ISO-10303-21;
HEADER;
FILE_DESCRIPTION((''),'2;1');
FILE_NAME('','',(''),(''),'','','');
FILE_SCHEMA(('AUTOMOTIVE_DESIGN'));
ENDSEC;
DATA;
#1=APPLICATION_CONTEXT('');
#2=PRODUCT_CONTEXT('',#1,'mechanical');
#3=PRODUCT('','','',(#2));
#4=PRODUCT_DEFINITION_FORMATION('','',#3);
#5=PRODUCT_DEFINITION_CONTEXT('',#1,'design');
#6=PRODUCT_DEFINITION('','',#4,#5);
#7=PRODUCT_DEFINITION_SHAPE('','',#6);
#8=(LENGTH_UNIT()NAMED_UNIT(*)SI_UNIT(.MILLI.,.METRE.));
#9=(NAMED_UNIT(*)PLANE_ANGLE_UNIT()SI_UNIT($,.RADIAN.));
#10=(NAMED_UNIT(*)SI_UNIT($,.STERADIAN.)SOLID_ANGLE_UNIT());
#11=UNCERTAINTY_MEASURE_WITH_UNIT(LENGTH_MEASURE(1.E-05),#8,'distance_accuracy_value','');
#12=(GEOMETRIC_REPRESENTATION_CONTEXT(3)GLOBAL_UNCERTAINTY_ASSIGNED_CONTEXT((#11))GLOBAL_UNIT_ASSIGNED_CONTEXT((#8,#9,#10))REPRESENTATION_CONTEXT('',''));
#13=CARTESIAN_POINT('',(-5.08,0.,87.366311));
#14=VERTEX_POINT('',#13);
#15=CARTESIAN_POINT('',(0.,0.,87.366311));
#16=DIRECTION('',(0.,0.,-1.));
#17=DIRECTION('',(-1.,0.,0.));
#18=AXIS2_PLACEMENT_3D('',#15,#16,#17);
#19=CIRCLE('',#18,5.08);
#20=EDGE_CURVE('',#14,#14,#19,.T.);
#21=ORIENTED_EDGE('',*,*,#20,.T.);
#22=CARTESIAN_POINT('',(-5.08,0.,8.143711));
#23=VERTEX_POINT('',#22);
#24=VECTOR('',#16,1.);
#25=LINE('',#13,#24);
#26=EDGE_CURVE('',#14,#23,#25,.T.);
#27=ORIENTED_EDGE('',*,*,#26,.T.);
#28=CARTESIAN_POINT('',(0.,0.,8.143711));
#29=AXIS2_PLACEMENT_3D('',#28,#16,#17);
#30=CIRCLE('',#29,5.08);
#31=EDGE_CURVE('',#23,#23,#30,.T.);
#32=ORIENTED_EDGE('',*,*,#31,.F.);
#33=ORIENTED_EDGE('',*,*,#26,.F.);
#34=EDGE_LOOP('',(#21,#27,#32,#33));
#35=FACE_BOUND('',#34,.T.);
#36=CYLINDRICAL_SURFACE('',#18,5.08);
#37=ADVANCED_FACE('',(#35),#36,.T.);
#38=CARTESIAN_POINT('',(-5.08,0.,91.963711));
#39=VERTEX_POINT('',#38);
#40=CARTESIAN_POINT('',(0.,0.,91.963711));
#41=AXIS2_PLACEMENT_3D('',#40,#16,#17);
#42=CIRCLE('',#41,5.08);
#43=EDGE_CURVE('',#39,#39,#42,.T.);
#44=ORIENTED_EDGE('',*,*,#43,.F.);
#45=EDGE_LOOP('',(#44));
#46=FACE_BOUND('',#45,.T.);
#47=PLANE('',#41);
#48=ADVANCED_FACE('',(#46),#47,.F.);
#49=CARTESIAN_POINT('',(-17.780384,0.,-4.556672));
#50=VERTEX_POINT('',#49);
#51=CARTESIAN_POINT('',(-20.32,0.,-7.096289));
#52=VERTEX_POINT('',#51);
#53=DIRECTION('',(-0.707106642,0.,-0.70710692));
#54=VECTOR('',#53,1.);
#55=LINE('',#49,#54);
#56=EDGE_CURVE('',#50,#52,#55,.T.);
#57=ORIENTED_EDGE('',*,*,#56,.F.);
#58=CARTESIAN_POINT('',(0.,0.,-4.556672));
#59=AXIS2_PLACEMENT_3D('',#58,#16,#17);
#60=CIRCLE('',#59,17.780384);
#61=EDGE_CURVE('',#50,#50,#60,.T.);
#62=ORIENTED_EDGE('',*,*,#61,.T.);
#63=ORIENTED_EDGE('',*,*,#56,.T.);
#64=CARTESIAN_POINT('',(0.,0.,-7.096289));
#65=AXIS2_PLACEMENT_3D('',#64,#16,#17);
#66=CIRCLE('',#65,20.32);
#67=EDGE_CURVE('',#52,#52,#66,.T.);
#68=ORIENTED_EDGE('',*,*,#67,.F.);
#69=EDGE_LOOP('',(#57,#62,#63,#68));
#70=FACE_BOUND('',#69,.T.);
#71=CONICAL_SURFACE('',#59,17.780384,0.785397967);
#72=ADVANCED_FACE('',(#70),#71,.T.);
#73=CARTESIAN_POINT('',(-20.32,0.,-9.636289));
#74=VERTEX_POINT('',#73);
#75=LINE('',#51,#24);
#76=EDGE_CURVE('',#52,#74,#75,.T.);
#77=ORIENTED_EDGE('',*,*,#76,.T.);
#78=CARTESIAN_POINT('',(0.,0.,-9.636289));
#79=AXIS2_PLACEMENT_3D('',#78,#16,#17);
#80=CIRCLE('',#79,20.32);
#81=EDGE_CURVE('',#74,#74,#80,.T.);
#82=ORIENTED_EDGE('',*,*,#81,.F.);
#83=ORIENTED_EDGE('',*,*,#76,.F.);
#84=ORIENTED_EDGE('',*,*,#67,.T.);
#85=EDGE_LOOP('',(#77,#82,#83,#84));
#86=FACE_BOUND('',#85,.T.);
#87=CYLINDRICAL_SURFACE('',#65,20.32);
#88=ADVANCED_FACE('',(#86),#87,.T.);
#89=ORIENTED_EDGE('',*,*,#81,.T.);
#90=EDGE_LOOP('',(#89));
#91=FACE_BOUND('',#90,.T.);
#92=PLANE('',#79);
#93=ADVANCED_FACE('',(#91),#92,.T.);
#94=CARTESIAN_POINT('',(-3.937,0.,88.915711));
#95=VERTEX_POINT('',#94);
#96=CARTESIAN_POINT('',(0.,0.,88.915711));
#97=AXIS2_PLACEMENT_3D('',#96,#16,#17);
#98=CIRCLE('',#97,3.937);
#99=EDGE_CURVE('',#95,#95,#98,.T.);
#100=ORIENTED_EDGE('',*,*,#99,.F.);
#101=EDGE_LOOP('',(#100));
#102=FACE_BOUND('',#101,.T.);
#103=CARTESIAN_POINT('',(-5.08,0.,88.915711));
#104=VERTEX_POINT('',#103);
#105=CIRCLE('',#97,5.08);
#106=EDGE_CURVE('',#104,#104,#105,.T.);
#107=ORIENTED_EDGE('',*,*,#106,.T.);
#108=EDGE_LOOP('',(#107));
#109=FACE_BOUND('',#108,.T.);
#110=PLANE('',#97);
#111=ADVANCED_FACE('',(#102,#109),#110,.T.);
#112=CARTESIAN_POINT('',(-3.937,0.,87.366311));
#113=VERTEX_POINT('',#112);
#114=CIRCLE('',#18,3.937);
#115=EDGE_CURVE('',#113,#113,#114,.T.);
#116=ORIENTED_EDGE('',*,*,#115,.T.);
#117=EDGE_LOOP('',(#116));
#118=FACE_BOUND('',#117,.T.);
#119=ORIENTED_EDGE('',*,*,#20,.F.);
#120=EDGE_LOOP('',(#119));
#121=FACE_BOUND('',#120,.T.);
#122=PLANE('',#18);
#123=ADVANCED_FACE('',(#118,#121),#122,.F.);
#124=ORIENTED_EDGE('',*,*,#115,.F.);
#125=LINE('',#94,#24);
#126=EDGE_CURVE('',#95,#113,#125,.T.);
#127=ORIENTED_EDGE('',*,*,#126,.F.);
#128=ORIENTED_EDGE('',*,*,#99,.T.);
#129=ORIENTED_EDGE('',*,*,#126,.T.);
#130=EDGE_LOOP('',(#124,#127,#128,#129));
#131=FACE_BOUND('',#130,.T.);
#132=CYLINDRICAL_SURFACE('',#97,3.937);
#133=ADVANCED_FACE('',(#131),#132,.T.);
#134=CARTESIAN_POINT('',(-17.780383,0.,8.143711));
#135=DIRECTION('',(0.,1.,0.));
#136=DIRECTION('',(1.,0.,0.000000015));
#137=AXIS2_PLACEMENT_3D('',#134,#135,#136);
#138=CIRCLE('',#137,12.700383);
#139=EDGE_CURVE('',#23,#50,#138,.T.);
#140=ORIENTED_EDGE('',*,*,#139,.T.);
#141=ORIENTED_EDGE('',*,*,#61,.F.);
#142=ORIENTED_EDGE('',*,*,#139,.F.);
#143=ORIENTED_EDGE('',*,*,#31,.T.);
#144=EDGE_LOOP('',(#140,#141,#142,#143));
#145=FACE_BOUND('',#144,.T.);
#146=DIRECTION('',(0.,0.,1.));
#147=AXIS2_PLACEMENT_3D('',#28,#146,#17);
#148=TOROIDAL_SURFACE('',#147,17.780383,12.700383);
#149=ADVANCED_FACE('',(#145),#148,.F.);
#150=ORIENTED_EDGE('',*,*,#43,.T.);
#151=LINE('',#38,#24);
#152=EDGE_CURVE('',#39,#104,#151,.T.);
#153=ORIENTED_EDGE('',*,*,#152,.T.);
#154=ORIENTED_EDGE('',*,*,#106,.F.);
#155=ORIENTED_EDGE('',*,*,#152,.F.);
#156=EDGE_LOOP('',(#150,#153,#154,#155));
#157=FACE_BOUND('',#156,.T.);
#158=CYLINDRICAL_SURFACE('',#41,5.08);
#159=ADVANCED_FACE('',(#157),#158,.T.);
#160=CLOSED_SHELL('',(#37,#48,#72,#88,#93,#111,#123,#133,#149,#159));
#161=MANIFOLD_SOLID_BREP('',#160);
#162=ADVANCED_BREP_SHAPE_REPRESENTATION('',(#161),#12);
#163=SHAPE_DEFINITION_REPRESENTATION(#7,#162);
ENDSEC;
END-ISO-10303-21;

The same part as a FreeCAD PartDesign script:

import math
import FreeCAD as App
import Part
import Sketcher
Q = App.Units.Quantity

doc = App.newDocument("Part")
body = doc.addObject("PartDesign::Body", "Body")

sketch1 = body.newObject("Sketcher::SketchObject", "Sketch")
sketch1.AttachmentSupport = (doc.getObject("XZ_Plane"), [""])
sketch1.MapMode = "FlatFace"
sketch1.addGeometry(Part.LineSegment(App.Vector(-20.3, -9.6, 0), App.Vector(0, -9.6, 0)), False)
sketch1.addGeometry(Part.LineSegment(App.Vector(0, -9.6, 0), App.Vector(0, 92, 0)), False)
sketch1.addGeometry(Part.LineSegment(App.Vector(0, 92, 0), App.Vector(-5.1, 92, 0)), False)
sketch1.addGeometry(Part.LineSegment(App.Vector(-5.1, 92, 0), App.Vector(-5.1, 88.9, 0)), False)
sketch1.addGeometry(Part.LineSegment(App.Vector(-5.1, 88.9, 0), App.Vector(-3.9, 88.9, 0)), False)
sketch1.addGeometry(Part.LineSegment(App.Vector(-3.9, 88.9, 0), App.Vector(-3.9, 87.4, 0)), False)
sketch1.addGeometry(Part.LineSegment(App.Vector(-3.9, 87.4, 0), App.Vector(-5.1, 87.4, 0)), False)
sketch1.addGeometry(Part.LineSegment(App.Vector(-5.1, 87.4, 0), App.Vector(-5.1, 8.1, 0)), False)
sketch1.addGeometry(Part.ArcOfCircle(Part.Circle(App.Vector(-17.8, 8.1, 0), App.Vector(0, 0, 1), 12.7), math.radians(-90), math.radians(0)), False)
sketch1.addGeometry(Part.LineSegment(App.Vector(-17.8, -4.6, 0), App.Vector(-20.3, -7.1, 0)), False)
sketch1.addGeometry(Part.LineSegment(App.Vector(-20.3, -7.1, 0), App.Vector(-20.3, -9.6, 0)), False)
sketch1.addConstraint(Sketcher.Constraint("Coincident", 0, 2, 1, 1))
sketch1.addConstraint(Sketcher.Constraint("Coincident", 1, 2, 2, 1))
sketch1.addConstraint(Sketcher.Constraint("Coincident", 2, 2, 3, 1))
sketch1.addConstraint(Sketcher.Constraint("Coincident", 3, 2, 4, 1))
sketch1.addConstraint(Sketcher.Constraint("Coincident", 4, 2, 5, 1))
sketch1.addConstraint(Sketcher.Constraint("Coincident", 5, 2, 6, 1))
sketch1.addConstraint(Sketcher.Constraint("Coincident", 6, 2, 7, 1))
sketch1.addConstraint(Sketcher.Constraint("Tangent", 7, 2, 8, 2))
sketch1.addConstraint(Sketcher.Constraint("Coincident", 8, 1, 9, 1))
sketch1.addConstraint(Sketcher.Constraint("Coincident", 9, 2, 10, 1))
sketch1.addConstraint(Sketcher.Constraint("Coincident", 10, 2, 0, 1))
sketch1.addConstraint(Sketcher.Constraint("Horizontal", 0))
sketch1.addConstraint(Sketcher.Constraint("Vertical", 1))
sketch1.addConstraint(Sketcher.Constraint("Horizontal", 2))
sketch1.addConstraint(Sketcher.Constraint("Vertical", 3))
sketch1.addConstraint(Sketcher.Constraint("Horizontal", 4))
sketch1.addConstraint(Sketcher.Constraint("Vertical", 5))
sketch1.addConstraint(Sketcher.Constraint("Horizontal", 6))
sketch1.addConstraint(Sketcher.Constraint("Vertical", 7))
sketch1.addConstraint(Sketcher.Constraint("Vertical", 10))
sketch1.addConstraint(Sketcher.Constraint("PointOnObject", 0, 2, -2))
sketch1.addConstraint(Sketcher.Constraint("Vertical", 3, 2, 6, 2))
sketch1.addConstraint(Sketcher.Constraint("DistanceY", 1, 1, 1, 2, Q("4 in")))
sketch1.addConstraint(Sketcher.Constraint("DistanceX", 0, 1, 0, 2, Q("0.8 in")))
sketch1.addConstraint(Sketcher.Constraint("DistanceX", 2, 2, 2, 1, Q("0.2 in")))
sketch1.addConstraint(Sketcher.Constraint("DistanceY", 10, 2, 10, 1, Q("0.1 in")))
sketch1.addConstraint(Sketcher.Constraint("Angle", 9, Q("-134.999989 deg")))
sketch1.addConstraint(Sketcher.Constraint("DistanceY", 3, 2, 3, 1, Q("0.12 in")))
sketch1.addConstraint(Sketcher.Constraint("DistanceY", 0, 2, 8, 3, Q("0.7 in")))
sketch1.addConstraint(Sketcher.Constraint("DistanceX", 4, 1, 4, 2, Q("0.045 in")))
sketch1.addConstraint(Sketcher.Constraint("DistanceY", 5, 2, 5, 1, Q("0.061 in")))
sketch1.addConstraint(Sketcher.Constraint("Distance", 9, Q("0.1414 in")))
sketch1.addConstraint(Sketcher.Constraint("DistanceY", -1, 1, 8, 3, Q("8.143711 mm")))
revolution = body.newObject("PartDesign::Revolution", "Revolution")
revolution.Profile = sketch1
revolution.ReferenceAxis = (sketch1, ["V_Axis"])
revolution.Angle = 360

doc.recompute()
